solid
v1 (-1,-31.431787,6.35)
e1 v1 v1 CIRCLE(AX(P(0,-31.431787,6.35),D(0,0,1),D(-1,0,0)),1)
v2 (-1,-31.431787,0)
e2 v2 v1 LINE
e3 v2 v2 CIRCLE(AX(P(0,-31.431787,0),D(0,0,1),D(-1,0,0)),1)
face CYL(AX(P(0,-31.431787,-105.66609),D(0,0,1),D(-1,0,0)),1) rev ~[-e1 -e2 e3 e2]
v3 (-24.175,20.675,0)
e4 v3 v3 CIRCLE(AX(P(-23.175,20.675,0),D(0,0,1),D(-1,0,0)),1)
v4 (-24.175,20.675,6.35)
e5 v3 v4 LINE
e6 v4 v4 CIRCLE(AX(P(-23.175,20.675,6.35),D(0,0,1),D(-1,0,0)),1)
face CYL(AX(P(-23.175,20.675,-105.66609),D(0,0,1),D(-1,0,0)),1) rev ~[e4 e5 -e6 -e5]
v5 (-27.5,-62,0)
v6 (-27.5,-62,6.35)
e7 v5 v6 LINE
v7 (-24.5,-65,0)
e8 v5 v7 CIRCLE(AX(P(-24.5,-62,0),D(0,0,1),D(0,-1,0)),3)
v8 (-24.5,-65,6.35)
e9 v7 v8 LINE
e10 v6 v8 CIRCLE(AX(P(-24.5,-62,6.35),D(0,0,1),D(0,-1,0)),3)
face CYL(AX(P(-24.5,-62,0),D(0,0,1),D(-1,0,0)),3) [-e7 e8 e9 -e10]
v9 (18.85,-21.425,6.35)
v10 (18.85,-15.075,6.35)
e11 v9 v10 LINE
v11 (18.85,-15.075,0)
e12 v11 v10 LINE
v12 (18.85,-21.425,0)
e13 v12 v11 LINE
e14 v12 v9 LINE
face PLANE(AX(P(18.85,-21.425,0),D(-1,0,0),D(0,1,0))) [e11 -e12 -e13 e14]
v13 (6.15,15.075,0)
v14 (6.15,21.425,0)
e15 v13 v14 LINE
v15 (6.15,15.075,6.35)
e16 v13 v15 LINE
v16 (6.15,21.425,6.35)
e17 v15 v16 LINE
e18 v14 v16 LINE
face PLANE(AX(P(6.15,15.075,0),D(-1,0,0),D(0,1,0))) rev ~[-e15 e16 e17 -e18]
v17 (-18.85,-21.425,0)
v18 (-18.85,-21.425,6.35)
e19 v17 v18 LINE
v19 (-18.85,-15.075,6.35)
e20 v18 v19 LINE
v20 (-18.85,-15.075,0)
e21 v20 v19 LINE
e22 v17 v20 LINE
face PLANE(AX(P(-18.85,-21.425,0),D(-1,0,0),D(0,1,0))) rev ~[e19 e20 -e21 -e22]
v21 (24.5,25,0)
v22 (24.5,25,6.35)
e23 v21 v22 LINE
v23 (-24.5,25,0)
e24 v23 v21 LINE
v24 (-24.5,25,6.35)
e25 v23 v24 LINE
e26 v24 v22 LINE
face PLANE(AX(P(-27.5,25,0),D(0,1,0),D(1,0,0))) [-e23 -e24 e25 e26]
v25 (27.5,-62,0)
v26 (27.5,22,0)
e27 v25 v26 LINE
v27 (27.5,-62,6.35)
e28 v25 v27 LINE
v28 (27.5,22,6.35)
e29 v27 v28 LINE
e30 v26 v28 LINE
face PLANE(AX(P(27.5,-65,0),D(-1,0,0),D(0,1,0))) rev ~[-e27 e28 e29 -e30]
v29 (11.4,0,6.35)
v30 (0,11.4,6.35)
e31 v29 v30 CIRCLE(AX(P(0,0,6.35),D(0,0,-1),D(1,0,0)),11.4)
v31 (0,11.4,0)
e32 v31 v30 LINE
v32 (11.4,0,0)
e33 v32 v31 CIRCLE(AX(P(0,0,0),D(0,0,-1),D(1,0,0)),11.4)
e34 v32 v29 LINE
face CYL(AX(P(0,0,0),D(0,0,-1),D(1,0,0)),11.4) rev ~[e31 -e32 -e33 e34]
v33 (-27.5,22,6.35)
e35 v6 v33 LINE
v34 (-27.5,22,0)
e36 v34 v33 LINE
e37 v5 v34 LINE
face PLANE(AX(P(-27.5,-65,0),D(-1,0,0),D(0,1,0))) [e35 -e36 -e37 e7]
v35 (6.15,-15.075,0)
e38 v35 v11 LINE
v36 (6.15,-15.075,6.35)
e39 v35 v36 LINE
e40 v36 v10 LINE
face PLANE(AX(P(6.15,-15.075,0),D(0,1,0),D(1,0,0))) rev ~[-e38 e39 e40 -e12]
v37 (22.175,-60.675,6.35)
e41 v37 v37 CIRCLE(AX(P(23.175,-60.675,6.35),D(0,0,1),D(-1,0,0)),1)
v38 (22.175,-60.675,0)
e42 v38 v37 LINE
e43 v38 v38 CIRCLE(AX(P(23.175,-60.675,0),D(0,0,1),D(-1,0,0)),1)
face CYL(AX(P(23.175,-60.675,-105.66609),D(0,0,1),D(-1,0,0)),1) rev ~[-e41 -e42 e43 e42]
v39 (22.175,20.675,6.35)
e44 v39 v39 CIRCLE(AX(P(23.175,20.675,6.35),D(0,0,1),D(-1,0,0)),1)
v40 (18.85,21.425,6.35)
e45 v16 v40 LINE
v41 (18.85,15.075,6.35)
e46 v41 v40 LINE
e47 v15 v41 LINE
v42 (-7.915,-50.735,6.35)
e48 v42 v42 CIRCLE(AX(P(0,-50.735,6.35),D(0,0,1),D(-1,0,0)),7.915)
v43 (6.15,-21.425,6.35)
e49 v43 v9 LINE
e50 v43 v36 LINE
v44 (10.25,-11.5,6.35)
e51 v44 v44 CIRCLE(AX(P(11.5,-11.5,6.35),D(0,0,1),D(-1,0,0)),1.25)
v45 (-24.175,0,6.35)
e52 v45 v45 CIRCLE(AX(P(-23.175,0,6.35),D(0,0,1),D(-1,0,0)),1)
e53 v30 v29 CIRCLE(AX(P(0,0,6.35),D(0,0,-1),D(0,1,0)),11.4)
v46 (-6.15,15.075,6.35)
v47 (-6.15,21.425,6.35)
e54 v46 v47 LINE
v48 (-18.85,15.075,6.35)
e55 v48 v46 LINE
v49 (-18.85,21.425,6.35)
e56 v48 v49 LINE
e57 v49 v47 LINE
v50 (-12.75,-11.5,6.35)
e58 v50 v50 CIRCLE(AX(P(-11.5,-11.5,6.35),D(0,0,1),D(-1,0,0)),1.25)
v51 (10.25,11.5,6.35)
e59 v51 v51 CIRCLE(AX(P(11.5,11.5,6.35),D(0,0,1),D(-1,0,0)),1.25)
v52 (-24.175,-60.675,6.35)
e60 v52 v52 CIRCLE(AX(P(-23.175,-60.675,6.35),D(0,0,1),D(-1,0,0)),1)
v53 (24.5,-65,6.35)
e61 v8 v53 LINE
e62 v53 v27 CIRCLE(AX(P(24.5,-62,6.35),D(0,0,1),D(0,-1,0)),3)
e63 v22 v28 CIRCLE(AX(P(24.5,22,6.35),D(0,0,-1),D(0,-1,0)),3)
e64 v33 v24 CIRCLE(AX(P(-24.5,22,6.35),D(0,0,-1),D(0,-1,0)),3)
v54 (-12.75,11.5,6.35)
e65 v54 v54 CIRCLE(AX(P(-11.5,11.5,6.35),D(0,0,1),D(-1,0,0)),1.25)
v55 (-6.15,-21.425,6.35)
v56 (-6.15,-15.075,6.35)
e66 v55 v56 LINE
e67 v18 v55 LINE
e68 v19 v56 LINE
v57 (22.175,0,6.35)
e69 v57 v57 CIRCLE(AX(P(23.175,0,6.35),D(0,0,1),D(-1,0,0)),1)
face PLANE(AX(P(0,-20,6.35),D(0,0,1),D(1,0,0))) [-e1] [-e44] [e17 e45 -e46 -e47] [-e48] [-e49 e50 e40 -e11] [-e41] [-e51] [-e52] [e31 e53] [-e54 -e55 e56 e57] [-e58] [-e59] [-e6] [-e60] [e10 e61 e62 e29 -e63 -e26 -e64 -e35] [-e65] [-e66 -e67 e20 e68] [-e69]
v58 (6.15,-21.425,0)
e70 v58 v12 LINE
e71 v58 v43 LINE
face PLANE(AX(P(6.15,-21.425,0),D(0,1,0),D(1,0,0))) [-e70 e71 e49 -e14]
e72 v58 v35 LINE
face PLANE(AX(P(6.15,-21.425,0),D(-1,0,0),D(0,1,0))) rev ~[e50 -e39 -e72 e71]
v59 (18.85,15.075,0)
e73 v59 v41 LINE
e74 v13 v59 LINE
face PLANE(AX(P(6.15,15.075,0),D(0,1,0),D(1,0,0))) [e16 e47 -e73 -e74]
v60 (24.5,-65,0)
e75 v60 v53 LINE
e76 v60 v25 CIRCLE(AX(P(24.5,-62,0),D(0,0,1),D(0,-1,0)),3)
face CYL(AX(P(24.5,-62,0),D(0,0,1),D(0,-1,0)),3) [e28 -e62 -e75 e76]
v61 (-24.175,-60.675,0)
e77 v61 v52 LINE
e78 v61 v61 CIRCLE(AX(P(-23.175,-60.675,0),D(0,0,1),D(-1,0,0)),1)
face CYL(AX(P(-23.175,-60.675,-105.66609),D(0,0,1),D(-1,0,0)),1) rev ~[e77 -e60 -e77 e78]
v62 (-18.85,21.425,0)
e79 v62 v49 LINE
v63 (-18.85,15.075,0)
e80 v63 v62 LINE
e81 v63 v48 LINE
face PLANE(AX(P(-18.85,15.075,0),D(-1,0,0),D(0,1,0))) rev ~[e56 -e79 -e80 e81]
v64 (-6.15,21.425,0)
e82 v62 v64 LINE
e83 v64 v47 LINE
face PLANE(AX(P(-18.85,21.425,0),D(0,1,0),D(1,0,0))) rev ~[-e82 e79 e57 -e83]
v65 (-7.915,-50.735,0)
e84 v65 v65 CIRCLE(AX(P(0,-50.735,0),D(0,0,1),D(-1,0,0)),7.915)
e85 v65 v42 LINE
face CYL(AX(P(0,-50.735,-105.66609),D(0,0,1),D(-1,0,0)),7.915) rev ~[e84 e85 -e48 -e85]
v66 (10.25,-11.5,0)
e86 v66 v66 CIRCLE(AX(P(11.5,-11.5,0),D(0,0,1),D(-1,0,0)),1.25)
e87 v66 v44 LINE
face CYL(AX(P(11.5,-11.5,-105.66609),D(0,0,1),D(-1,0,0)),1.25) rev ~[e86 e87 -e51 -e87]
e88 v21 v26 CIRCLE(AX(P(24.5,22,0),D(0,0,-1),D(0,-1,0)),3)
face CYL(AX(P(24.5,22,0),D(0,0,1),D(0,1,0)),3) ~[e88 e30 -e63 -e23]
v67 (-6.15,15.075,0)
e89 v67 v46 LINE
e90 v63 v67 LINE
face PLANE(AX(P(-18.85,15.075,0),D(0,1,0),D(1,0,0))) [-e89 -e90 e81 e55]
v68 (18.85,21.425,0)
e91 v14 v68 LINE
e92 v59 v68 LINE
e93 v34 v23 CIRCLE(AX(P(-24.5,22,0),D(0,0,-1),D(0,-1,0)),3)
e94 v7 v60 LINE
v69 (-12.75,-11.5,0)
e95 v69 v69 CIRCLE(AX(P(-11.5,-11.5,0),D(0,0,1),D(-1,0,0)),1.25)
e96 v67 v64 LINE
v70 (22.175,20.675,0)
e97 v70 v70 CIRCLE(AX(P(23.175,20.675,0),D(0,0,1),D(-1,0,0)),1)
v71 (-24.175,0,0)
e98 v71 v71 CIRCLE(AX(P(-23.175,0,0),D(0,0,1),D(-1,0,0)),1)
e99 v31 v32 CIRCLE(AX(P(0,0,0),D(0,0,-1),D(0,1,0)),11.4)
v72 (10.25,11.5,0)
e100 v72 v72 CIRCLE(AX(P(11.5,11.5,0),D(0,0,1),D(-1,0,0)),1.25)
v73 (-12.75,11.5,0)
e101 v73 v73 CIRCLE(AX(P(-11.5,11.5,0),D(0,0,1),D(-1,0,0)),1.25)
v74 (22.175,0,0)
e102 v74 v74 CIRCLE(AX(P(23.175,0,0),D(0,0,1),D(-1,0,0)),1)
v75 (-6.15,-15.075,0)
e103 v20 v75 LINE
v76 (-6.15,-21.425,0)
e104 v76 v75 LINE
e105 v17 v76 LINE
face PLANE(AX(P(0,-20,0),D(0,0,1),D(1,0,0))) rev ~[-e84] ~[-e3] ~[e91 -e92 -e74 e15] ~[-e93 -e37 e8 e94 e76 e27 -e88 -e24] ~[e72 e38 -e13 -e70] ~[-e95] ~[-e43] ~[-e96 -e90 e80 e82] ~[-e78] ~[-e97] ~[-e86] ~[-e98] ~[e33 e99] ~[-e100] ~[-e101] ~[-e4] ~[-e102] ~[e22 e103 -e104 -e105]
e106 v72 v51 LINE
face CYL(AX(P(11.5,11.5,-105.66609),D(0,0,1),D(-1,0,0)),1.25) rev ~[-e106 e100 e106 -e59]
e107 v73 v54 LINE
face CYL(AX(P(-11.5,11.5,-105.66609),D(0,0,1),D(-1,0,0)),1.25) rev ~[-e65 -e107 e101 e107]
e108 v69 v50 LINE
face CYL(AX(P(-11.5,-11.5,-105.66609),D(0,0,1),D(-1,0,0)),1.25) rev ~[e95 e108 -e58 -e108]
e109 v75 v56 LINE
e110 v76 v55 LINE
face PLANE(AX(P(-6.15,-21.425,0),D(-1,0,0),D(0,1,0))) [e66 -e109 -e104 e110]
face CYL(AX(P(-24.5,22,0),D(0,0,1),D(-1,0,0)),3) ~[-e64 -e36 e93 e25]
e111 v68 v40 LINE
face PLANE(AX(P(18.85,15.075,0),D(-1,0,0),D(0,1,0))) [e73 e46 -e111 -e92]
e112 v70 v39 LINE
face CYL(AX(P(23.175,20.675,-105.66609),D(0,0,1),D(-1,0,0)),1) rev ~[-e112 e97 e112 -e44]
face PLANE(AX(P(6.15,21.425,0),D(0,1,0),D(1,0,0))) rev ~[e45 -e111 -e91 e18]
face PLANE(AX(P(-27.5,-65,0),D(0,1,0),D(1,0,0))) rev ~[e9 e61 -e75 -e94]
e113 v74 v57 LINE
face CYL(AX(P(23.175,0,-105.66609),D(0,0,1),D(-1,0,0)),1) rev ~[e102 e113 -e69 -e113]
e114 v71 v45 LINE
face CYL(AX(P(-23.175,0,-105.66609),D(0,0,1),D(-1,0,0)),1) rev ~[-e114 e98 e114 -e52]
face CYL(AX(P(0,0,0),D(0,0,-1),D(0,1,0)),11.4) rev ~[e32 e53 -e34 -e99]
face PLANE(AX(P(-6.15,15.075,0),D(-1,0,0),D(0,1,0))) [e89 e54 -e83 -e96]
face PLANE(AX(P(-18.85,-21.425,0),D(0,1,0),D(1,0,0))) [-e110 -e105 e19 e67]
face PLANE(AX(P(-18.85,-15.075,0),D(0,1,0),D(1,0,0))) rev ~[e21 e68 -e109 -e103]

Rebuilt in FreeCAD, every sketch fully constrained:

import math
import FreeCAD as App
import Part
import Sketcher
Q = App.Units.Quantity


def edges_at(feature, points):
    """Names of the edges that pass closest to the given points."""
    edges = feature.Shape.Edges
    near = lambda p: min(range(len(edges)), key=lambda i: edges[i].distToShape(Part.Vertex(*p))[0])
    return sorted({f"Edge{near(p) + 1}" for p in points})


def add_polygon(sketch, points):
    """Adds a closed chain of lines whose ends are joined by coincident constraints."""
    first, n = sketch.GeometryCount, len(points)
    for a, b in zip(points, points[1:] + points[:1]):
        sketch.addGeometry(Part.LineSegment(App.Vector(*a, 0), App.Vector(*b, 0)), False)
    for i in range(n):
        sketch.addConstraint(Sketcher.Constraint("Coincident", first + i, 2, first + (i + 1) % n, 1))

doc = App.newDocument("Part")
body = doc.addObject("PartDesign::Body", "Body")

# Sketch on XY plane
sketch1 = body.newObject("Sketcher::SketchObject", "Sketch")
sketch1.AttachmentSupport = (doc.getObject("XY_Plane"), [""])
sketch1.MapMode = "FlatFace"
add_polygon(sketch1, [(-28, 25), (-28, -65), (28, -65), (28, 25)])  # lines 0-3
add_polygon(sketch1, [(-6, -21), (-19, -21), (-19, -15), (-6, -15)])  # lines 4-7
add_polygon(sketch1, [(19, -21), (6, -21), (6, -15), (19, -15)])  # lines 8-11
add_polygon(sketch1, [(-6, 15), (-19, 15), (-19, 21), (-6, 21)])  # lines 12-15
sketch1.addGeometry(Part.ArcOfCircle(Part.Circle(App.Vector(0, 0, 0), App.Vector(0, 0, 1), 11), math.radians(90), math.radians(360)), False)  # 16
sketch1.addGeometry(Part.ArcOfCircle(Part.Circle(App.Vector(0, 0, 0), App.Vector(0, 0, 1), 11), math.radians(0), math.radians(90)), False)  # 17
add_polygon(sketch1, [(19, 15), (6, 15), (6, 21), (19, 21)])  # lines 18-21
sketch1.addConstraint([
    Sketcher.Constraint("Tangent", 16, 1, 17, 2),
    Sketcher.Constraint("Coincident", 17, 1, 16, 2),
    Sketcher.Constraint("Vertical", 0),
    Sketcher.Constraint("Horizontal", 1),
    Sketcher.Constraint("Vertical", 2),
    Sketcher.Constraint("Horizontal", 3),
    Sketcher.Constraint("Horizontal", 4),
    Sketcher.Constraint("Vertical", 5),
    Sketcher.Constraint("Horizontal", 6),
    Sketcher.Constraint("Vertical", 7),
    Sketcher.Constraint("Horizontal", 8),
    Sketcher.Constraint("Vertical", 9),
    Sketcher.Constraint("Horizontal", 10),
    Sketcher.Constraint("Vertical", 11),
    Sketcher.Constraint("Horizontal", 12),
    Sketcher.Constraint("Vertical", 13),
    Sketcher.Constraint("Horizontal", 14),
    Sketcher.Constraint("Vertical", 15),
    Sketcher.Constraint("Horizontal", 18),
    Sketcher.Constraint("Vertical", 19),
    Sketcher.Constraint("Horizontal", 20),
    Sketcher.Constraint("Vertical", 21),
    Sketcher.Constraint("Coincident", 16, 3, -1, 1),
    Sketcher.Constraint("Symmetric", 10, 2, 12, 2, -1, 1),
    Sketcher.Constraint("Symmetric", 8, 2, 14, 2, -1, 1),
    Sketcher.Constraint("Symmetric", 6, 2, 18, 2, -1, 1),
    Sketcher.Constraint("Symmetric", 4, 2, 20, 2, -1, 1),
    Sketcher.Constraint("Symmetric", 7, 2, 8, 2, -2),
    Sketcher.Constraint("Symmetric", 5, 2, 10, 2, -2),
    Sketcher.Constraint("PointOnObject", 16, 1, -2),
    Sketcher.Constraint("PointOnObject", 17, 1, -1),
    Sketcher.Constraint("Radius", 16, Q("11.4 mm")),
    Sketcher.Constraint("DistanceX", 1, 1, 1, 2, Q("55 mm")),
    Sketcher.Constraint("DistanceY", 0, 2, 0, 1, Q("90 mm")),
    Sketcher.Constraint("DistanceX", 4, 2, 4, 1, Q("12.7 mm")),
    Sketcher.Constraint("DistanceY", 0, 2, -1, 1, Q("65 mm")),
    Sketcher.Constraint("DistanceX", 4, 2, 8, 2, Q("25 mm")),
    Sketcher.Constraint("DistanceY", 5, 1, 5, 2, Q("6.35 mm")),
    Sketcher.Constraint("DistanceX", 0, 2, -1, 1, Q("27.5 mm")),
    Sketcher.Constraint("DistanceY", 5, 2, 13, 2, Q("36.5 mm")),
])
pad1 = body.newObject("PartDesign::Pad", "Pad")
pad1.Profile = sketch1
pad1.Length = 6.35

# Sketch on XY plane
sketch2 = body.newObject("Sketcher::SketchObject", "Sketch001")
sketch2.AttachmentSupport = (doc.getObject("XY_Plane"), [""])
sketch2.MapMode = "FlatFace"
sketch2.addGeometry([
    Part.Circle(App.Vector(-11.5, 11.5, 0), App.Vector(0, 0, 1), 1.2),
    Part.Circle(App.Vector(11.5, 11.5, 0), App.Vector(0, 0, 1), 1.2),
    Part.Circle(App.Vector(11.5, -11.5, 0), App.Vector(0, 0, 1), 1.2),
    Part.Circle(App.Vector(-11.5, -11.5, 0), App.Vector(0, 0, 1), 1.2),
], False)
sketch2.addConstraint([
    Sketcher.Constraint("Equal", 0, 1),
    Sketcher.Constraint("Equal", 1, 2),
    Sketcher.Constraint("Equal", 2, 3),
    Sketcher.Constraint("Symmetric", 0, 3, 2, 3, -1, 1),
    Sketcher.Constraint("Symmetric", 1, 3, 3, 3, -1, 1),
    Sketcher.Constraint("Symmetric", 0, 3, 1, 3, -2),
    Sketcher.Constraint("Diameter", 0, Q("2.5 mm")),
    Sketcher.Constraint("DistanceX", 0, 3, 1, 3, Q("23 mm")),
    Sketcher.Constraint("DistanceY", 2, 3, 1, 3, Q("23 mm")),
])
doc.recompute()
hole = body.newObject("PartDesign::Hole", "Hole")
hole.Profile = sketch2
hole.ThreadType = "None"
hole.Diameter = 2.5
hole.DepthType = "ThroughAll"
hole.Reversed = True
doc.recompute()

fillet = body.newObject("PartDesign::Fillet", "Fillet")
fillet.Base = (hole, edges_at(hole, [
    (-27.5, -65, 3.175),
    (27.5, -65, 3.175),
    (27.5, 25, 3.175),
    (-27.5, 25, 3.175),
]))
fillet.Radius = 3

# Sketch on XY plane
sketch3 = body.newObject("Sketcher::SketchObject", "Sketch002")
sketch3.AttachmentSupport = (doc.getObject("XY_Plane"), [""])
sketch3.MapMode = "FlatFace"
sketch3.addGeometry(Part.Circle(App.Vector(0, -51, 0), App.Vector(0, 0, 1), 8), False)
sketch3.addConstraint([
    Sketcher.Constraint("PointOnObject", 0, 3, -2),
    Sketcher.Constraint("Diameter", 0, Q("15.83 mm")),
    Sketcher.Constraint("DistanceY", 0, 3, -1, 1, Q("50.735 mm")),
])
doc.recompute()
hole2 = body.newObject("PartDesign::Hole", "Hole001")
hole2.Profile = sketch3
hole2.ThreadType = "None"
hole2.Diameter = 15.83
hole2.DepthType = "ThroughAll"
hole2.Reversed = True

# Sketch on XY plane
sketch4 = body.newObject("Sketcher::SketchObject", "Sketch003")
sketch4.AttachmentSupport = (doc.getObject("XY_Plane"), [""])
sketch4.MapMode = "FlatFace"
sketch4.addGeometry([
    Part.Circle(App.Vector(-23.2, 20.7, 0), App.Vector(0, 0, 1), 1),  # 0
    Part.Circle(App.Vector(23.2, 20.7, 0), App.Vector(0, 0, 1), 1),  # 1
    Part.Circle(App.Vector(23.2, 0, 0), App.Vector(0, 0, 1), 1),  # 2
    Part.Circle(App.Vector(-23.2, 0, 0), App.Vector(0, 0, 1), 1),  # 3
    Part.Circle(App.Vector(-23.2, -60.7, 0), App.Vector(0, 0, 1), 1),  # 4
    Part.Circle(App.Vector(23.2, -60.7, 0), App.Vector(0, 0, 1), 1),  # 5
    Part.Circle(App.Vector(0, -31.4, 0), App.Vector(0, 0, 1), 1),  # 6
], False)
sketch4.addConstraint([
    Sketcher.Constraint("Equal", 0, 1),
    Sketcher.Constraint("Equal", 1, 2),
    Sketcher.Constraint("Equal", 2, 3),
    Sketcher.Constraint("Equal", 3, 4),
    Sketcher.Constraint("Equal", 4, 5),
    Sketcher.Constraint("Equal", 5, 6),
    Sketcher.Constraint("Symmetric", 2, 3, 3, 3, -1, 1),
    Sketcher.Constraint("Symmetric", 0, 3, 1, 3, -2),
    Sketcher.Constraint("Symmetric", 4, 3, 5, 3, -2),
    Sketcher.Constraint("PointOnObject", 2, 3, -1),
    Sketcher.Constraint("PointOnObject", 6, 3, -2),
    Sketcher.Constraint("Vertical", 1, 3, 2, 3),
    Sketcher.Constraint("Vertical", 3, 3, 4, 3),
    Sketcher.Constraint("Diameter", 0, Q("2 mm")),
    Sketcher.Constraint("DistanceX", 0, 3, 1, 3, Q("46.35 mm")),
    Sketcher.Constraint("DistanceY", 4, 3, 0, 3, Q("81.35 mm")),
    Sketcher.Constraint("DistanceY", -1, 1, 0, 3, Q("20.675 mm")),
    Sketcher.Constraint("DistanceY", 6, 3, -1, 1, Q("31.431787 mm")),
])
doc.recompute()
hole3 = body.newObject("PartDesign::Hole", "Hole002")
hole3.Profile = sketch4
hole3.ThreadType = "None"
hole3.Diameter = 2
hole3.DepthType = "ThroughAll"
hole3.Reversed = True

doc.recompute()
